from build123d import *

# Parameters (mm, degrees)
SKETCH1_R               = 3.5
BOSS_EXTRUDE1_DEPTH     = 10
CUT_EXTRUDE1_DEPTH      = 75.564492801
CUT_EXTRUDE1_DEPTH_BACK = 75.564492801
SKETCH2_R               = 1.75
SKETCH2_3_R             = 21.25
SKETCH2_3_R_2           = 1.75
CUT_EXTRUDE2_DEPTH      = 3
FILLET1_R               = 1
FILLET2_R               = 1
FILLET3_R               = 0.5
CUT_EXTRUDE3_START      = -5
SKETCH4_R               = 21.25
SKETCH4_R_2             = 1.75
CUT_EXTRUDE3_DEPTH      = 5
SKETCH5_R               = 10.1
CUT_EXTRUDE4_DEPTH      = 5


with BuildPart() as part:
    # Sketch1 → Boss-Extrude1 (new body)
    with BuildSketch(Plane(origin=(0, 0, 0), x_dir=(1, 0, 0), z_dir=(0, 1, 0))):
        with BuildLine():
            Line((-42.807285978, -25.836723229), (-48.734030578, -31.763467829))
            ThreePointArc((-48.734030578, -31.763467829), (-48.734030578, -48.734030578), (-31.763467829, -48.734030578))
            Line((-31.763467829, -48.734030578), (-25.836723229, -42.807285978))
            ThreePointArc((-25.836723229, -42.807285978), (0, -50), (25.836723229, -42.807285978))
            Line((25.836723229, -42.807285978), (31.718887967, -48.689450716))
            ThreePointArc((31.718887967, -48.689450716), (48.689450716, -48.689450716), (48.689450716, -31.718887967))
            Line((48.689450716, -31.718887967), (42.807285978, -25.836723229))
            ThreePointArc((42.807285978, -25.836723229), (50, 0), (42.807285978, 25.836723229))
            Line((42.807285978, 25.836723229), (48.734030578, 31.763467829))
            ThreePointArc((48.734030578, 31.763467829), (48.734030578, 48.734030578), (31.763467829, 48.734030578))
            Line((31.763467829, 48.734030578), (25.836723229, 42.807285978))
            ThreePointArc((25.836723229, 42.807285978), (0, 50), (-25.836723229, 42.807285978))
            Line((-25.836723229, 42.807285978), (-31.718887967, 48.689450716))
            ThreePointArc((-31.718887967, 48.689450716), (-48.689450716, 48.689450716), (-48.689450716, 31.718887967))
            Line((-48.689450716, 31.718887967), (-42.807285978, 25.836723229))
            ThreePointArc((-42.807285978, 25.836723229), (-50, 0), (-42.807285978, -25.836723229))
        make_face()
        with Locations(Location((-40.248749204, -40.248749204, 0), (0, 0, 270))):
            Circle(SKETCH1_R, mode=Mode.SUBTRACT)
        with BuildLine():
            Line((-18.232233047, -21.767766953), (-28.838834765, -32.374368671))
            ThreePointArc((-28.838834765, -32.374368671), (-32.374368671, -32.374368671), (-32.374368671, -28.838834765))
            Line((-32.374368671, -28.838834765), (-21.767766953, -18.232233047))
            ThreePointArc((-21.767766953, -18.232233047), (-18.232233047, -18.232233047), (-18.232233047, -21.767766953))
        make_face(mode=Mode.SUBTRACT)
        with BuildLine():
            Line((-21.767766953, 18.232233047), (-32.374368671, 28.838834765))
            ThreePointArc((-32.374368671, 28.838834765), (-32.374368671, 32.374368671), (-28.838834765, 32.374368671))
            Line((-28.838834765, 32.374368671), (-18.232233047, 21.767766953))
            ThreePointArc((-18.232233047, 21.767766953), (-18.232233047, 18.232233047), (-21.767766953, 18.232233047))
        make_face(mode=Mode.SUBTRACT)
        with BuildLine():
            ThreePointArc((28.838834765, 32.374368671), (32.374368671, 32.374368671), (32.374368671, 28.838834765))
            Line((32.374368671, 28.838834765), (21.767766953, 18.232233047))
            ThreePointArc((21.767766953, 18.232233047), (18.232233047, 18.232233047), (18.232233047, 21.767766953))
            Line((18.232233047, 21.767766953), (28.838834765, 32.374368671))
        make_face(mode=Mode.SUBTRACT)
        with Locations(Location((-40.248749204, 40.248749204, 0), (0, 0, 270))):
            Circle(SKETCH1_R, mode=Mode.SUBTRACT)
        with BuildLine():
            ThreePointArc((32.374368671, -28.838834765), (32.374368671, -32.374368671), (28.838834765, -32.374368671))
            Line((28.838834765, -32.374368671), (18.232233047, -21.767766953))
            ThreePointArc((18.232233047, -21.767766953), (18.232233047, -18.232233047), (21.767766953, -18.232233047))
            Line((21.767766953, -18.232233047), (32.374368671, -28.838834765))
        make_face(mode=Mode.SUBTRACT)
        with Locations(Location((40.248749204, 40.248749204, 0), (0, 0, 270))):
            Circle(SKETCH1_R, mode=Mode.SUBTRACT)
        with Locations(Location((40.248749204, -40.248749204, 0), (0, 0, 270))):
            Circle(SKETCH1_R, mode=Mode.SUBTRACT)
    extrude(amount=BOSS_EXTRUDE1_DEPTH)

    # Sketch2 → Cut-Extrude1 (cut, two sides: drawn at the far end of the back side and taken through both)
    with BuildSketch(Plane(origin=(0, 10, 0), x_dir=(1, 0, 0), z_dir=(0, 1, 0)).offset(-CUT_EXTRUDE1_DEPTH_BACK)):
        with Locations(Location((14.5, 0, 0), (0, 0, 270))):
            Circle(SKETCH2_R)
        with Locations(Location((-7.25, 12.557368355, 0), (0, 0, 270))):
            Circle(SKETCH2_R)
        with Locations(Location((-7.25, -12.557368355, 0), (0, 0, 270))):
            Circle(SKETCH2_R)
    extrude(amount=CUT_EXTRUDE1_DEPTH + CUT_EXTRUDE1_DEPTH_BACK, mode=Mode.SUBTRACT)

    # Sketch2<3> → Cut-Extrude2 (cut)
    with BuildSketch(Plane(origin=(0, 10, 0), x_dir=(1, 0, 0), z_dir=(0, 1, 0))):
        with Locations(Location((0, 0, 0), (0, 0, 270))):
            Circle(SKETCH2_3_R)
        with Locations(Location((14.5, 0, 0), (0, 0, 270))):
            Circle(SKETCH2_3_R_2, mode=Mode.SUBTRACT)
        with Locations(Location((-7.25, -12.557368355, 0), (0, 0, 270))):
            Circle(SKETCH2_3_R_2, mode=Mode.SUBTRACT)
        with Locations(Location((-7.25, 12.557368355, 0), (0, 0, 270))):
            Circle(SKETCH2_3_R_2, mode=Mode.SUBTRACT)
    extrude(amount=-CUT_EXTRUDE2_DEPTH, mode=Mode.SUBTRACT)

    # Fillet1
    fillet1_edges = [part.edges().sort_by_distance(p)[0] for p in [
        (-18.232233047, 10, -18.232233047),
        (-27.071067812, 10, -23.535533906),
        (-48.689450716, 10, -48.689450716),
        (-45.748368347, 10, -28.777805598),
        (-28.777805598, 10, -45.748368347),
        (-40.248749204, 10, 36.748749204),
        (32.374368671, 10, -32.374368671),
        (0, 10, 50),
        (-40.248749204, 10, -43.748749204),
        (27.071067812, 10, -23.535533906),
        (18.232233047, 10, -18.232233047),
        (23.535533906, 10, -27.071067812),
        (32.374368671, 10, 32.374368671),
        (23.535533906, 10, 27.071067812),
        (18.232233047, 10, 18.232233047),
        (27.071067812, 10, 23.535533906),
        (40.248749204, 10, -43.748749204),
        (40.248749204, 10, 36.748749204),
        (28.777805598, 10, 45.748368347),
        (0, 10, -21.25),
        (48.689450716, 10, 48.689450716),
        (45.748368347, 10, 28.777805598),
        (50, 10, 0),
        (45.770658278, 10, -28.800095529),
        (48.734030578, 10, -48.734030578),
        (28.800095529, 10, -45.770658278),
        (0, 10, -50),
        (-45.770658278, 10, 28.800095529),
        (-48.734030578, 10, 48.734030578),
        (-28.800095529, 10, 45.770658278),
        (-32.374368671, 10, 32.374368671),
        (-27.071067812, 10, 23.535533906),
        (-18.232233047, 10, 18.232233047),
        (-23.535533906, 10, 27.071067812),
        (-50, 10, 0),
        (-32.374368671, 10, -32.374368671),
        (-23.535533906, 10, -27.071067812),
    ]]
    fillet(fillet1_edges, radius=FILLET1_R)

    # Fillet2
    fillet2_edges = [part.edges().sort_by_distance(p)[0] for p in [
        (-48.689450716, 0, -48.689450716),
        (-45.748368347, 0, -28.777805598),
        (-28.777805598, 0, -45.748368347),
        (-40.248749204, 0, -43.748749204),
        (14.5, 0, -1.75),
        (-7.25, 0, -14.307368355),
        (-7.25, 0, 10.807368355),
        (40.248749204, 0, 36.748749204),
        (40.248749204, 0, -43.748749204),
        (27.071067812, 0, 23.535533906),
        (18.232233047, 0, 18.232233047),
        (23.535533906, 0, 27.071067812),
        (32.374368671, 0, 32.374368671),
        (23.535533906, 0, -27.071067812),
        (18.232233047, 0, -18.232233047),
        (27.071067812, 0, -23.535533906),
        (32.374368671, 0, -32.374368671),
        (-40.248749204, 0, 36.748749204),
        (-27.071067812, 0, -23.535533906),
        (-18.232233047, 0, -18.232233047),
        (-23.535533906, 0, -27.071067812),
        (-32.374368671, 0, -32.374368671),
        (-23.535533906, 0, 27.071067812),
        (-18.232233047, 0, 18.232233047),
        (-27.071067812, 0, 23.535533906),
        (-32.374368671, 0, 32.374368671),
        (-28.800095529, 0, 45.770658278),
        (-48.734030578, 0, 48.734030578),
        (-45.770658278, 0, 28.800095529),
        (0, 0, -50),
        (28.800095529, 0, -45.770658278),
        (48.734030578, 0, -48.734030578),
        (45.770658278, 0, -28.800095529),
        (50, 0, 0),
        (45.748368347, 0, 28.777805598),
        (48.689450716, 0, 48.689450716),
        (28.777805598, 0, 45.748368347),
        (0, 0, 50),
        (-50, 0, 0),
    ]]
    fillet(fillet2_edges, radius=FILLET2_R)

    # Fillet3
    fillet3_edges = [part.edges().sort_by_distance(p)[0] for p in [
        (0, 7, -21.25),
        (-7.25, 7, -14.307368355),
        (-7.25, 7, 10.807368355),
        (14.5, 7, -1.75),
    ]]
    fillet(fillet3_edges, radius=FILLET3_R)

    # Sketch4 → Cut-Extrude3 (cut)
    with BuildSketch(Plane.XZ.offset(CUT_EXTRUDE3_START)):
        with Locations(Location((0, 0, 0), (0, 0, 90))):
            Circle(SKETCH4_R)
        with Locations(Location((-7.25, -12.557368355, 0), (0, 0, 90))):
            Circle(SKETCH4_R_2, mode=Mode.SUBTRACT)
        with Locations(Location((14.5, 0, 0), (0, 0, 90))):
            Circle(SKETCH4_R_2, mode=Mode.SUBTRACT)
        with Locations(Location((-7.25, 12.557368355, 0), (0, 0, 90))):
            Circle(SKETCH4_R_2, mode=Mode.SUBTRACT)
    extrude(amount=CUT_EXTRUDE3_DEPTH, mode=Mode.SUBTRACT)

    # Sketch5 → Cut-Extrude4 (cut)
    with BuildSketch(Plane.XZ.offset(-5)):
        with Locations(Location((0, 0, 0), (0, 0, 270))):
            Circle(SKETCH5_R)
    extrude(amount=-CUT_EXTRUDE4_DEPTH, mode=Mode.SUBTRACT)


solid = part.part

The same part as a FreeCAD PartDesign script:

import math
import FreeCAD as App
import Part
import Sketcher


def edges_at(feature, points):
    """Names of the edges that pass closest to the given points."""
    edges = feature.Shape.Edges
    near = lambda p: min(range(len(edges)), key=lambda i: edges[i].distToShape(Part.Vertex(*p))[0])
    return sorted({f"Edge{near(p) + 1}" for p in points})

doc = App.newDocument("Part")
body = doc.addObject("PartDesign::Body", "Body")

sketch1 = doc.addObject("Sketcher::SketchObject", "Sketch")
body.addObject(sketch1)
sketch1.AttachmentSupport = (doc.XZ_Plane, [""])
sketch1.MapMode = "FlatFace"
sketch1.addGeometry(Part.LineSegment(App.Vector(-42.8, 25.8, 0), App.Vector(-48.7, 31.8, 0)), False)
sketch1.addGeometry(Part.ArcOfCircle(Part.Circle(App.Vector(-40.2, 40.2, 0), App.Vector(0, 0, 1), 12), math.radians(45), math.radians(225)), False)
sketch1.addGeometry(Part.LineSegment(App.Vector(-31.8, 48.7, 0), App.Vector(-25.8, 42.8, 0)), False)
sketch1.addGeometry(Part.ArcOfCircle(Part.Circle(App.Vector(0, 0, 0), App.Vector(0, 0, 1), 50), math.radians(59), math.radians(121)), False)
sketch1.addGeometry(Part.LineSegment(App.Vector(25.8, 42.8, 0), App.Vector(31.7, 48.7, 0)), False)
sketch1.addGeometry(Part.ArcOfCircle(Part.Circle(App.Vector(40.2, 40.2, 0), App.Vector(0, 0, 1), 12), math.radians(-45), math.radians(135)), False)
sketch1.addGeometry(Part.LineSegment(App.Vector(48.7, 31.7, 0), App.Vector(42.8, 25.8, 0)), False)
sketch1.addGeometry(Part.ArcOfCircle(Part.Circle(App.Vector(0, 0, 0), App.Vector(0, 0, 1), 50), math.radians(-31), math.radians(31)), False)
sketch1.addGeometry(Part.LineSegment(App.Vector(42.8, -25.8, 0), App.Vector(48.7, -31.8, 0)), False)
sketch1.addGeometry(Part.ArcOfCircle(Part.Circle(App.Vector(40.2, -40.2, 0), App.Vector(0, 0, 1), 12), math.radians(-135), math.radians(45)), False)
sketch1.addGeometry(Part.LineSegment(App.Vector(31.8, -48.7, 0), App.Vector(25.8, -42.8, 0)), False)
sketch1.addGeometry(Part.ArcOfCircle(Part.Circle(App.Vector(0, 0, 0), App.Vector(0, 0, 1), 50), math.radians(-121), math.radians(-59)), False)
sketch1.addGeometry(Part.LineSegment(App.Vector(-25.8, -42.8, 0), App.Vector(-31.7, -48.7, 0)), False)
sketch1.addGeometry(Part.ArcOfCircle(Part.Circle(App.Vector(-40.2, -40.2, 0), App.Vector(0, 0, 1), 12), math.radians(135), math.radians(315)), False)
sketch1.addGeometry(Part.LineSegment(App.Vector(-48.7, -31.7, 0), App.Vector(-42.8, -25.8, 0)), False)
sketch1.addGeometry(Part.ArcOfCircle(Part.Circle(App.Vector(0, 0, 0), App.Vector(0, 0, 1), 50), math.radians(149), math.radians(211)), False)
sketch1.addGeometry(Part.Circle(App.Vector(-40.2, 40.2, 0), App.Vector(0, 0, 1), 3.5), False)
sketch1.addGeometry(Part.ArcOfCircle(Part.Circle(App.Vector(-20, 20, 0), App.Vector(0, 0, 1), 2.5), math.radians(-135), math.radians(45)), False)
sketch1.addGeometry(Part.LineSegment(App.Vector(-18.2, 21.8, 0), App.Vector(-28.8, 32.4, 0)), False)
sketch1.addGeometry(Part.ArcOfCircle(Part.Circle(App.Vector(-30.6, 30.6, 0), App.Vector(0, 0, 1), 2.5), math.radians(45), math.radians(225)), False)
sketch1.addGeometry(Part.LineSegment(App.Vector(-32.4, 28.8, 0), App.Vector(-21.8, 18.2, 0)), False)
sketch1.addGeometry(Part.Circle(App.Vector(40.2, 40.2, 0), App.Vector(0, 0, 1), 3.5), False)
sketch1.addGeometry(Part.LineSegment(App.Vector(21.8, 18.2, 0), App.Vector(32.4, 28.8, 0)), False)
sketch1.addGeometry(Part.ArcOfCircle(Part.Circle(App.Vector(30.6, 30.6, 0), App.Vector(0, 0, 1), 2.5), math.radians(-45), math.radians(135)), False)
sketch1.addGeometry(Part.LineSegment(App.Vector(28.8, 32.4, 0), App.Vector(18.2, 21.8, 0)), False)
sketch1.addGeometry(Part.ArcOfCircle(Part.Circle(App.Vector(20, 20, 0), App.Vector(0, 0, 1), 2.5), math.radians(135), math.radians(315)), False)
sketch1.addGeometry(Part.ArcOfCircle(Part.Circle(App.Vector(-20, -20, 0), App.Vector(0, 0, 1), 2.5), math.radians(-45), math.radians(135)), False)
sketch1.addGeometry(Part.LineSegment(App.Vector(-21.8, -18.2, 0), App.Vector(-32.4, -28.8, 0)), False)
sketch1.addGeometry(Part.ArcOfCircle(Part.Circle(App.Vector(-30.6, -30.6, 0), App.Vector(0, 0, 1), 2.5), math.radians(135), math.radians(315)), False)
sketch1.addGeometry(Part.LineSegment(App.Vector(-28.8, -32.4, 0), App.Vector(-18.2, -21.8, 0)), False)
sketch1.addGeometry(Part.Circle(App.Vector(-40.2, -40.2, 0), App.Vector(0, 0, 1), 3.5), False)
sketch1.addGeometry(Part.LineSegment(App.Vector(18.2, -21.8, 0), App.Vector(28.8, -32.4, 0)), False)
sketch1.addGeometry(Part.ArcOfCircle(Part.Circle(App.Vector(30.6, -30.6, 0), App.Vector(0, 0, 1), 2.5), math.radians(-135), math.radians(45)), False)
sketch1.addGeometry(Part.LineSegment(App.Vector(32.4, -28.8, 0), App.Vector(21.8, -18.2, 0)), False)
sketch1.addGeometry(Part.ArcOfCircle(Part.Circle(App.Vector(20, -20, 0), App.Vector(0, 0, 1), 2.5), math.radians(45), math.radians(225)), False)
sketch1.addGeometry(Part.Circle(App.Vector(40.2, -40.2, 0), App.Vector(0, 0, 1), 3.5), False)
sketch1.addConstraint(Sketcher.Constraint("Tangent", 0, 2, 1, 2))
sketch1.addConstraint(Sketcher.Constraint("Tangent", 1, 1, 2, 1))
sketch1.addConstraint(Sketcher.Constraint("Coincident", 2, 2, 3, 2))
sketch1.addConstraint(Sketcher.Constraint("Coincident", 3, 1, 4, 1))
sketch1.addConstraint(Sketcher.Constraint("Tangent", 4, 2, 5, 2))
sketch1.addConstraint(Sketcher.Constraint("Tangent", 5, 1, 6, 1))
sketch1.addConstraint(Sketcher.Constraint("Coincident", 6, 2, 7, 2))
sketch1.addConstraint(Sketcher.Constraint("Coincident", 7, 1, 8, 1))
sketch1.addConstraint(Sketcher.Constraint("Tangent", 8, 2, 9, 2))
sketch1.addConstraint(Sketcher.Constraint("Tangent", 9, 1, 10, 1))
sketch1.addConstraint(Sketcher.Constraint("Coincident", 10, 2, 11, 2))
sketch1.addConstraint(Sketcher.Constraint("Coincident", 11, 1, 12, 1))
sketch1.addConstraint(Sketcher.Constraint("Tangent", 12, 2, 13, 2))
sketch1.addConstraint(Sketcher.Constraint("Tangent", 13, 1, 14, 1))
sketch1.addConstraint(Sketcher.Constraint("Coincident", 14, 2, 15, 2))
sketch1.addConstraint(Sketcher.Constraint("Coincident", 15, 1, 0, 1))
sketch1.addConstraint(Sketcher.Constraint("Tangent", 17, 2, 18, 1))
sketch1.addConstraint(Sketcher.Constraint("Tangent", 18, 2, 19, 1))
sketch1.addConstraint(Sketcher.Constraint("Tangent", 19, 2, 20, 1))
sketch1.addConstraint(Sketcher.Constraint("Tangent", 20, 2, 17, 1))
sketch1.addConstraint(Sketcher.Constraint("Tangent", 22, 2, 23, 1))
sketch1.addConstraint(Sketcher.Constraint("Tangent", 23, 2, 24, 1))
sketch1.addConstraint(Sketcher.Constraint("Tangent", 24, 2, 25, 1))
sketch1.addConstraint(Sketcher.Constraint("Tangent", 25, 2, 22, 1))
sketch1.addConstraint(Sketcher.Constraint("Tangent", 26, 2, 27, 1))
sketch1.addConstraint(Sketcher.Constraint("Tangent", 27, 2, 28, 1))
sketch1.addConstraint(Sketcher.Constraint("Tangent", 28, 2, 29, 1))
sketch1.addConstraint(Sketcher.Constraint("Tangent", 29, 2, 26, 1))
sketch1.addConstraint(Sketcher.Constraint("Tangent", 31, 2, 32, 1))
sketch1.addConstraint(Sketcher.Constraint("Tangent", 32, 2, 33, 1))
sketch1.addConstraint(Sketcher.Constraint("Tangent", 33, 2, 34, 1))
sketch1.addConstraint(Sketcher.Constraint("Tangent", 34, 2, 31, 1))
sketch1.addConstraint(Sketcher.Constraint("Coincident", 3, 3, -1, 1))
sketch1.addConstraint(Sketcher.Constraint("Coincident", 7, 3, -1, 1))
sketch1.addConstraint(Sketcher.Constraint("Coincident", 11, 3, -1, 1))
sketch1.addConstraint(Sketcher.Constraint("Coincident", 15, 3, -1, 1))
sketch1.addConstraint(Sketcher.Constraint("Coincident", 16, 3, 1, 3))
sketch1.addConstraint(Sketcher.Constraint("Coincident", 35, 3, 9, 3))
sketch1.addConstraint(Sketcher.Constraint("Equal", 1, 5))
sketch1.addConstraint(Sketcher.Constraint("Equal", 3, 7))
sketch1.addConstraint(Sketcher.Constraint("Equal", 5, 9))
sketch1.addConstraint(Sketcher.Constraint("Equal", 7, 11))
sketch1.addConstraint(Sketcher.Constraint("Equal", 9, 13))
sketch1.addConstraint(Sketcher.Constraint("Equal", 11, 15))
sketch1.addConstraint(Sketcher.Constraint("Equal", 17, 19))
sketch1.addConstraint(Sketcher.Constraint("Equal", 16, 21))
sketch1.addConstraint(Sketcher.Constraint("Equal", 19, 23))
sketch1.addConstraint(Sketcher.Constraint("Equal", 23, 25))
sketch1.addConstraint(Sketcher.Constraint("Equal", 25, 26))
sketch1.addConstraint(Sketcher.Constraint("Equal", 26, 28))
sketch1.addConstraint(Sketcher.Constraint("Equal", 21, 30))
sketch1.addConstraint(Sketcher.Constraint("Equal", 28, 32))
sketch1.addConstraint(Sketcher.Constraint("Equal", 32, 34))
sketch1.addConstraint(Sketcher.Constraint("Equal", 30, 35))
sketch1.addConstraint(Sketcher.Constraint("Symmetric", 1, 3, 9, 3, -1, 1))
sketch1.addConstraint(Sketcher.Constraint("Symmetric", 5, 3, 13, 3, -1, 1))
sketch1.addConstraint(Sketcher.Constraint("Symmetric", 25, 3, 26, 3, -1, 1))
sketch1.addConstraint(Sketcher.Constraint("Symmetric", 23, 3, 28, 3, -1, 1))
sketch1.addConstraint(Sketcher.Constraint("Symmetric", 21, 3, 30, 3, -1, 1))
sketch1.addConstraint(Sketcher.Constraint("Symmetric", 19, 3, 32, 3, -1, 1))
sketch1.addConstraint(Sketcher.Constraint("Symmetric", 17, 3, 34, 3, -1, 1))
sketch1.addConstraint(Sketcher.Constraint("Symmetric", 1, 3, 21, 3, -2))
sketch1.addConstraint(Sketcher.Constraint("Symmetric", 19, 3, 23, 3, -2))
sketch1.addConstraint(Sketcher.Constraint("Symmetric", 17, 3, 25, 3, -2))
sketch1.addConstraint(Sketcher.Constraint("Parallel", 0, 2))
sketch1.addConstraint(Sketcher.Constraint("Perpendicular", 2, 4))
sketch1.addConstraint(Sketcher.Constraint("Parallel", 4, 6))
sketch1.addConstraint(Sketcher.Constraint("Perpendicular", 6, 8))
sketch1.addConstraint(Sketcher.Constraint("Parallel", 8, 10))
sketch1.addConstraint(Sketcher.Constraint("Perpendicular", 10, 12))
sketch1.addConstraint(Sketcher.Constraint("Parallel", 12, 14))
sketch1.addConstraint(Sketcher.Constraint("Perpendicular", 14, 18))
sketch1.addConstraint(Sketcher.Constraint("Perpendicular", 20, 22))
sketch1.addConstraint(Sketcher.Constraint("Horizontal", 2, 2, 3, 1))
sketch1.addConstraint(Sketcher.Constraint("Equal", 0, 2))
sketch1.addConstraint(Sketcher.Constraint("Diameter", 16, 7.0))
sketch1.addConstraint(Sketcher.Constraint("Radius", 1, 12.0))
sketch1.addConstraint(Sketcher.Constraint("Radius", 3, 50.0))
sketch1.addConstraint(Sketcher.Constraint("Radius", 17, 2.5))
sketch1.addConstraint(Sketcher.Constraint("Distance", 18, 15.0))
sketch1.addConstraint(Sketcher.Constraint("DistanceX", 17, 3, -1, 1, 20.0))
sketch1.addConstraint(Sketcher.Constraint("DistanceY", -1, 1, 17, 3, 20.0))
sketch1.addConstraint(Sketcher.Constraint("DistanceX", 1, 3, 9, 3, 80.497498))
sketch1.addConstraint(Sketcher.Constraint("DistanceY", 21, 3, 4, 2, 8.440702))
pad1 = doc.addObject("PartDesign::Pad", "Pad")
body.addObject(pad1)
pad1.Profile = sketch1
pad1.Length = 10
pad1.Reversed = True

sketch2 = doc.addObject("Sketcher::SketchObject", "Sketch001")
body.addObject(sketch2)
sketch2.AttachmentSupport = (doc.XZ_Plane, [""])
sketch2.MapMode = "FlatFace"
sketch2.AttachmentOffset = App.Placement(App.Vector(0, 0, -10), App.Rotation())
sketch2.addGeometry(Part.Circle(App.Vector(14.5, 0, 0), App.Vector(0, 0, 1), 1.8), False)
sketch2.addGeometry(Part.Circle(App.Vector(-7.2, -12.6, 0), App.Vector(0, 0, 1), 1.8), False)
sketch2.addGeometry(Part.Circle(App.Vector(-7.2, 12.6, 0), App.Vector(0, 0, 1), 1.8), False)
sketch2.addConstraint(Sketcher.Constraint("Equal", 0, 1))
sketch2.addConstraint(Sketcher.Constraint("Equal", 1, 2))
sketch2.addConstraint(Sketcher.Constraint("Symmetric", 1, 3, 2, 3, -1))
sketch2.addConstraint(Sketcher.Constraint("PointOnObject", 0, 3, -1))
sketch2.addConstraint(Sketcher.Constraint("Diameter", 0, 3.5))
sketch2.addConstraint(Sketcher.Constraint("DistanceX", -1, 1, 0, 3, 14.5))
sketch2.addConstraint(Sketcher.Constraint("DistanceX", 1, 3, -1, 1, 7.25))
sketch2.addConstraint(Sketcher.Constraint("DistanceY", 1, 3, -1, 1, 12.557368))
pocket1 = doc.addObject("PartDesign::Pocket", "Pocket")
body.addObject(pocket1)
pocket1.Profile = sketch2
pocket1.Type = "ThroughAll"
pocket1.Midplane = True

sketch3 = doc.addObject("Sketcher::SketchObject", "Sketch002")
body.addObject(sketch3)
sketch3.AttachmentSupport = (doc.XZ_Plane, [""])
sketch3.MapMode = "FlatFace"
sketch3.AttachmentOffset = App.Placement(App.Vector(0, 0, -10), App.Rotation())
sketch3.addGeometry(Part.Circle(App.Vector(0, 0, 0), App.Vector(0, 0, 1), 21.2), False)
sketch3.addGeometry(Part.Circle(App.Vector(-7.2, -12.6, 0), App.Vector(0, 0, 1), 1.8), False)
sketch3.addGeometry(Part.Circle(App.Vector(-7.2, 12.6, 0), App.Vector(0, 0, 1), 1.8), False)
sketch3.addGeometry(Part.Circle(App.Vector(14.5, 0, 0), App.Vector(0, 0, 1), 1.8), False)
sketch3.addConstraint(Sketcher.Constraint("Coincident", 0, 3, -1, 1))
sketch3.addConstraint(Sketcher.Constraint("Equal", 1, 2))
sketch3.addConstraint(Sketcher.Constraint("Equal", 2, 3))
sketch3.addConstraint(Sketcher.Constraint("Symmetric", 1, 3, 2, 3, -1))
sketch3.addConstraint(Sketcher.Constraint("PointOnObject", 3, 3, -1))
sketch3.addConstraint(Sketcher.Constraint("Diameter", 0, 42.5))
sketch3.addConstraint(Sketcher.Constraint("Diameter", 1, 3.5))
sketch3.addConstraint(Sketcher.Constraint("DistanceX", -1, 1, 3, 3, 14.5))
sketch3.addConstraint(Sketcher.Constraint("DistanceX", 1, 3, -1, 1, 7.25))
sketch3.addConstraint(Sketcher.Constraint("DistanceY", 1, 3, -1, 1, 12.557368))
pocket2 = doc.addObject("PartDesign::Pocket", "Pocket001")
body.addObject(pocket2)
pocket2.Profile = sketch3
pocket2.Length = 3
pocket2.Reversed = True
doc.recompute()

fillet = doc.addObject("PartDesign::Fillet", "Fillet")
body.addObject(fillet)
fillet.Base = (pocket2, edges_at(pocket2, [
    (-18.232, 10, -18.232),
    (-27.071, 10, -23.536),
    (-48.689, 10, -48.689),
    (-45.748, 10, -28.778),
    (-28.778, 10, -45.748),
    (-40.249, 10, 36.749),
    (32.374, 10, -32.374),
    (0, 10, 50),
    (-40.249, 10, -43.749),
    (27.071, 10, -23.536),
    (18.232, 10, -18.232),
    (23.536, 10, -27.071),
    (32.374, 10, 32.374),
    (23.536, 10, 27.071),
    (18.232, 10, 18.232),
    (27.071, 10, 23.536),
    (40.249, 10, -43.749),
    (40.249, 10, 36.749),
    (28.778, 10, 45.748),
    (0, 10, -21.25),
    (48.689, 10, 48.689),
    (45.748, 10, 28.778),
    (50, 10, 0),
    (45.771, 10, -28.8),
    (48.734, 10, -48.734),
    (28.8, 10, -45.771),
    (0, 10, -50),
    (-45.771, 10, 28.8),
    (-48.734, 10, 48.734),
    (-28.8, 10, 45.771),
    (-32.374, 10, 32.374),
    (-27.071, 10, 23.536),
    (-18.232, 10, 18.232),
    (-23.536, 10, 27.071),
    (-50, 10, 0),
    (-32.374, 10, -32.374),
    (-23.536, 10, -27.071),
]))
fillet.Radius = 1
doc.recompute()

fillet2 = doc.addObject("PartDesign::Fillet", "Fillet001")
body.addObject(fillet2)
fillet2.Base = (fillet, edges_at(fillet, [
    (-48.689, 0, -48.689),
    (-45.748, 0, -28.778),
    (-28.778, 0, -45.748),
    (-40.249, 0, -43.749),
    (14.5, 0, -1.75),
    (-7.25, 0, -14.307),
    (-7.25, 0, 10.807),
    (40.249, 0, 36.749),
    (40.249, 0, -43.749),
    (27.071, 0, 23.536),
    (18.232, 0, 18.232),
    (23.536, 0, 27.071),
    (32.374, 0, 32.374),
    (23.536, 0, -27.071),
    (18.232, 0, -18.232),
    (27.071, 0, -23.536),
    (32.374, 0, -32.374),
    (-40.249, 0, 36.749),
    (-27.071, 0, -23.536),
    (-18.232, 0, -18.232),
    (-23.536, 0, -27.071),
    (-32.374, 0, -32.374),
    (-23.536, 0, 27.071),
    (-18.232, 0, 18.232),
    (-27.071, 0, 23.536),
    (-32.374, 0, 32.374),
    (-28.8, 0, 45.771),
    (-48.734, 0, 48.734),
    (-45.771, 0, 28.8),
    (0, 0, -50),
    (28.8, 0, -45.771),
    (48.734, 0, -48.734),
    (45.771, 0, -28.8),
    (50, 0, 0),
    (45.748, 0, 28.778),
    (48.689, 0, 48.689),
    (28.778, 0, 45.748),
    (0, 0, 50),
    (-50, 0, 0),
]))
fillet2.Radius = 1
doc.recompute()

fillet3 = doc.addObject("PartDesign::Fillet", "Fillet002")
body.addObject(fillet3)
fillet3.Base = (fillet2, edges_at(fillet2, [
    (0, 7, -21.25),
    (-7.25, 7, -14.307),
    (-7.25, 7, 10.807),
    (14.5, 7, -1.75),
]))
fillet3.Radius = 0.5

sketch4 = doc.addObject("Sketcher::SketchObject", "Sketch003")
body.addObject(sketch4)
sketch4.AttachmentSupport = (doc.XZ_Plane, [""])
sketch4.MapMode = "FlatFace"
sketch4.AttachmentOffset = App.Placement(App.Vector(0, 0, -5), App.Rotation())
sketch4.addGeometry(Part.Circle(App.Vector(0, 0, 0), App.Vector(0, 0, 1), 21.2), False)
sketch4.addGeometry(Part.Circle(App.Vector(14.5, 0, 0), App.Vector(0, 0, 1), 1.8), False)
sketch4.addGeometry(Part.Circle(App.Vector(-7.2, -12.6, 0), App.Vector(0, 0, 1), 1.8), False)
sketch4.addGeometry(Part.Circle(App.Vector(-7.2, 12.6, 0), App.Vector(0, 0, 1), 1.8), False)
sketch4.addConstraint(Sketcher.Constraint("Coincident", 0, 3, -1, 1))
sketch4.addConstraint(Sketcher.Constraint("Equal", 1, 2))
sketch4.addConstraint(Sketcher.Constraint("Equal", 2, 3))
sketch4.addConstraint(Sketcher.Constraint("Symmetric", 2, 3, 3, 3, -1))
sketch4.addConstraint(Sketcher.Constraint("PointOnObject", 1, 3, -1))
sketch4.addConstraint(Sketcher.Constraint("Diameter", 0, 42.5))
sketch4.addConstraint(Sketcher.Constraint("Diameter", 1, 3.5))
sketch4.addConstraint(Sketcher.Constraint("DistanceX", -1, 1, 1, 3, 14.5))
sketch4.addConstraint(Sketcher.Constraint("DistanceX", 2, 3, -1, 1, 7.25))
sketch4.addConstraint(Sketcher.Constraint("DistanceY", 2, 3, -1, 1, 12.557368))
pocket3 = doc.addObject("PartDesign::Pocket", "Pocket002")
body.addObject(pocket3)
pocket3.Profile = sketch4
pocket3.Length = 5
pocket3.Reversed = True

sketch5 = doc.addObject("Sketcher::SketchObject", "Sketch004")
body.addObject(sketch5)
sketch5.AttachmentSupport = (doc.XZ_Plane, [""])
sketch5.MapMode = "FlatFace"
sketch5.AttachmentOffset = App.Placement(App.Vector(0, 0, -5), App.Rotation())
sketch5.addGeometry(Part.Circle(App.Vector(0, 0, 0), App.Vector(0, 0, 1), 10), False)
sketch5.addConstraint(Sketcher.Constraint("Coincident", 0, 3, -1, 1))
sketch5.addConstraint(Sketcher.Constraint("Diameter", 0, 20.2))
pocket4 = doc.addObject("PartDesign::Pocket", "Pocket003")
body.addObject(pocket4)
pocket4.Profile = sketch5
pocket4.Length = 5

doc.recompute()
